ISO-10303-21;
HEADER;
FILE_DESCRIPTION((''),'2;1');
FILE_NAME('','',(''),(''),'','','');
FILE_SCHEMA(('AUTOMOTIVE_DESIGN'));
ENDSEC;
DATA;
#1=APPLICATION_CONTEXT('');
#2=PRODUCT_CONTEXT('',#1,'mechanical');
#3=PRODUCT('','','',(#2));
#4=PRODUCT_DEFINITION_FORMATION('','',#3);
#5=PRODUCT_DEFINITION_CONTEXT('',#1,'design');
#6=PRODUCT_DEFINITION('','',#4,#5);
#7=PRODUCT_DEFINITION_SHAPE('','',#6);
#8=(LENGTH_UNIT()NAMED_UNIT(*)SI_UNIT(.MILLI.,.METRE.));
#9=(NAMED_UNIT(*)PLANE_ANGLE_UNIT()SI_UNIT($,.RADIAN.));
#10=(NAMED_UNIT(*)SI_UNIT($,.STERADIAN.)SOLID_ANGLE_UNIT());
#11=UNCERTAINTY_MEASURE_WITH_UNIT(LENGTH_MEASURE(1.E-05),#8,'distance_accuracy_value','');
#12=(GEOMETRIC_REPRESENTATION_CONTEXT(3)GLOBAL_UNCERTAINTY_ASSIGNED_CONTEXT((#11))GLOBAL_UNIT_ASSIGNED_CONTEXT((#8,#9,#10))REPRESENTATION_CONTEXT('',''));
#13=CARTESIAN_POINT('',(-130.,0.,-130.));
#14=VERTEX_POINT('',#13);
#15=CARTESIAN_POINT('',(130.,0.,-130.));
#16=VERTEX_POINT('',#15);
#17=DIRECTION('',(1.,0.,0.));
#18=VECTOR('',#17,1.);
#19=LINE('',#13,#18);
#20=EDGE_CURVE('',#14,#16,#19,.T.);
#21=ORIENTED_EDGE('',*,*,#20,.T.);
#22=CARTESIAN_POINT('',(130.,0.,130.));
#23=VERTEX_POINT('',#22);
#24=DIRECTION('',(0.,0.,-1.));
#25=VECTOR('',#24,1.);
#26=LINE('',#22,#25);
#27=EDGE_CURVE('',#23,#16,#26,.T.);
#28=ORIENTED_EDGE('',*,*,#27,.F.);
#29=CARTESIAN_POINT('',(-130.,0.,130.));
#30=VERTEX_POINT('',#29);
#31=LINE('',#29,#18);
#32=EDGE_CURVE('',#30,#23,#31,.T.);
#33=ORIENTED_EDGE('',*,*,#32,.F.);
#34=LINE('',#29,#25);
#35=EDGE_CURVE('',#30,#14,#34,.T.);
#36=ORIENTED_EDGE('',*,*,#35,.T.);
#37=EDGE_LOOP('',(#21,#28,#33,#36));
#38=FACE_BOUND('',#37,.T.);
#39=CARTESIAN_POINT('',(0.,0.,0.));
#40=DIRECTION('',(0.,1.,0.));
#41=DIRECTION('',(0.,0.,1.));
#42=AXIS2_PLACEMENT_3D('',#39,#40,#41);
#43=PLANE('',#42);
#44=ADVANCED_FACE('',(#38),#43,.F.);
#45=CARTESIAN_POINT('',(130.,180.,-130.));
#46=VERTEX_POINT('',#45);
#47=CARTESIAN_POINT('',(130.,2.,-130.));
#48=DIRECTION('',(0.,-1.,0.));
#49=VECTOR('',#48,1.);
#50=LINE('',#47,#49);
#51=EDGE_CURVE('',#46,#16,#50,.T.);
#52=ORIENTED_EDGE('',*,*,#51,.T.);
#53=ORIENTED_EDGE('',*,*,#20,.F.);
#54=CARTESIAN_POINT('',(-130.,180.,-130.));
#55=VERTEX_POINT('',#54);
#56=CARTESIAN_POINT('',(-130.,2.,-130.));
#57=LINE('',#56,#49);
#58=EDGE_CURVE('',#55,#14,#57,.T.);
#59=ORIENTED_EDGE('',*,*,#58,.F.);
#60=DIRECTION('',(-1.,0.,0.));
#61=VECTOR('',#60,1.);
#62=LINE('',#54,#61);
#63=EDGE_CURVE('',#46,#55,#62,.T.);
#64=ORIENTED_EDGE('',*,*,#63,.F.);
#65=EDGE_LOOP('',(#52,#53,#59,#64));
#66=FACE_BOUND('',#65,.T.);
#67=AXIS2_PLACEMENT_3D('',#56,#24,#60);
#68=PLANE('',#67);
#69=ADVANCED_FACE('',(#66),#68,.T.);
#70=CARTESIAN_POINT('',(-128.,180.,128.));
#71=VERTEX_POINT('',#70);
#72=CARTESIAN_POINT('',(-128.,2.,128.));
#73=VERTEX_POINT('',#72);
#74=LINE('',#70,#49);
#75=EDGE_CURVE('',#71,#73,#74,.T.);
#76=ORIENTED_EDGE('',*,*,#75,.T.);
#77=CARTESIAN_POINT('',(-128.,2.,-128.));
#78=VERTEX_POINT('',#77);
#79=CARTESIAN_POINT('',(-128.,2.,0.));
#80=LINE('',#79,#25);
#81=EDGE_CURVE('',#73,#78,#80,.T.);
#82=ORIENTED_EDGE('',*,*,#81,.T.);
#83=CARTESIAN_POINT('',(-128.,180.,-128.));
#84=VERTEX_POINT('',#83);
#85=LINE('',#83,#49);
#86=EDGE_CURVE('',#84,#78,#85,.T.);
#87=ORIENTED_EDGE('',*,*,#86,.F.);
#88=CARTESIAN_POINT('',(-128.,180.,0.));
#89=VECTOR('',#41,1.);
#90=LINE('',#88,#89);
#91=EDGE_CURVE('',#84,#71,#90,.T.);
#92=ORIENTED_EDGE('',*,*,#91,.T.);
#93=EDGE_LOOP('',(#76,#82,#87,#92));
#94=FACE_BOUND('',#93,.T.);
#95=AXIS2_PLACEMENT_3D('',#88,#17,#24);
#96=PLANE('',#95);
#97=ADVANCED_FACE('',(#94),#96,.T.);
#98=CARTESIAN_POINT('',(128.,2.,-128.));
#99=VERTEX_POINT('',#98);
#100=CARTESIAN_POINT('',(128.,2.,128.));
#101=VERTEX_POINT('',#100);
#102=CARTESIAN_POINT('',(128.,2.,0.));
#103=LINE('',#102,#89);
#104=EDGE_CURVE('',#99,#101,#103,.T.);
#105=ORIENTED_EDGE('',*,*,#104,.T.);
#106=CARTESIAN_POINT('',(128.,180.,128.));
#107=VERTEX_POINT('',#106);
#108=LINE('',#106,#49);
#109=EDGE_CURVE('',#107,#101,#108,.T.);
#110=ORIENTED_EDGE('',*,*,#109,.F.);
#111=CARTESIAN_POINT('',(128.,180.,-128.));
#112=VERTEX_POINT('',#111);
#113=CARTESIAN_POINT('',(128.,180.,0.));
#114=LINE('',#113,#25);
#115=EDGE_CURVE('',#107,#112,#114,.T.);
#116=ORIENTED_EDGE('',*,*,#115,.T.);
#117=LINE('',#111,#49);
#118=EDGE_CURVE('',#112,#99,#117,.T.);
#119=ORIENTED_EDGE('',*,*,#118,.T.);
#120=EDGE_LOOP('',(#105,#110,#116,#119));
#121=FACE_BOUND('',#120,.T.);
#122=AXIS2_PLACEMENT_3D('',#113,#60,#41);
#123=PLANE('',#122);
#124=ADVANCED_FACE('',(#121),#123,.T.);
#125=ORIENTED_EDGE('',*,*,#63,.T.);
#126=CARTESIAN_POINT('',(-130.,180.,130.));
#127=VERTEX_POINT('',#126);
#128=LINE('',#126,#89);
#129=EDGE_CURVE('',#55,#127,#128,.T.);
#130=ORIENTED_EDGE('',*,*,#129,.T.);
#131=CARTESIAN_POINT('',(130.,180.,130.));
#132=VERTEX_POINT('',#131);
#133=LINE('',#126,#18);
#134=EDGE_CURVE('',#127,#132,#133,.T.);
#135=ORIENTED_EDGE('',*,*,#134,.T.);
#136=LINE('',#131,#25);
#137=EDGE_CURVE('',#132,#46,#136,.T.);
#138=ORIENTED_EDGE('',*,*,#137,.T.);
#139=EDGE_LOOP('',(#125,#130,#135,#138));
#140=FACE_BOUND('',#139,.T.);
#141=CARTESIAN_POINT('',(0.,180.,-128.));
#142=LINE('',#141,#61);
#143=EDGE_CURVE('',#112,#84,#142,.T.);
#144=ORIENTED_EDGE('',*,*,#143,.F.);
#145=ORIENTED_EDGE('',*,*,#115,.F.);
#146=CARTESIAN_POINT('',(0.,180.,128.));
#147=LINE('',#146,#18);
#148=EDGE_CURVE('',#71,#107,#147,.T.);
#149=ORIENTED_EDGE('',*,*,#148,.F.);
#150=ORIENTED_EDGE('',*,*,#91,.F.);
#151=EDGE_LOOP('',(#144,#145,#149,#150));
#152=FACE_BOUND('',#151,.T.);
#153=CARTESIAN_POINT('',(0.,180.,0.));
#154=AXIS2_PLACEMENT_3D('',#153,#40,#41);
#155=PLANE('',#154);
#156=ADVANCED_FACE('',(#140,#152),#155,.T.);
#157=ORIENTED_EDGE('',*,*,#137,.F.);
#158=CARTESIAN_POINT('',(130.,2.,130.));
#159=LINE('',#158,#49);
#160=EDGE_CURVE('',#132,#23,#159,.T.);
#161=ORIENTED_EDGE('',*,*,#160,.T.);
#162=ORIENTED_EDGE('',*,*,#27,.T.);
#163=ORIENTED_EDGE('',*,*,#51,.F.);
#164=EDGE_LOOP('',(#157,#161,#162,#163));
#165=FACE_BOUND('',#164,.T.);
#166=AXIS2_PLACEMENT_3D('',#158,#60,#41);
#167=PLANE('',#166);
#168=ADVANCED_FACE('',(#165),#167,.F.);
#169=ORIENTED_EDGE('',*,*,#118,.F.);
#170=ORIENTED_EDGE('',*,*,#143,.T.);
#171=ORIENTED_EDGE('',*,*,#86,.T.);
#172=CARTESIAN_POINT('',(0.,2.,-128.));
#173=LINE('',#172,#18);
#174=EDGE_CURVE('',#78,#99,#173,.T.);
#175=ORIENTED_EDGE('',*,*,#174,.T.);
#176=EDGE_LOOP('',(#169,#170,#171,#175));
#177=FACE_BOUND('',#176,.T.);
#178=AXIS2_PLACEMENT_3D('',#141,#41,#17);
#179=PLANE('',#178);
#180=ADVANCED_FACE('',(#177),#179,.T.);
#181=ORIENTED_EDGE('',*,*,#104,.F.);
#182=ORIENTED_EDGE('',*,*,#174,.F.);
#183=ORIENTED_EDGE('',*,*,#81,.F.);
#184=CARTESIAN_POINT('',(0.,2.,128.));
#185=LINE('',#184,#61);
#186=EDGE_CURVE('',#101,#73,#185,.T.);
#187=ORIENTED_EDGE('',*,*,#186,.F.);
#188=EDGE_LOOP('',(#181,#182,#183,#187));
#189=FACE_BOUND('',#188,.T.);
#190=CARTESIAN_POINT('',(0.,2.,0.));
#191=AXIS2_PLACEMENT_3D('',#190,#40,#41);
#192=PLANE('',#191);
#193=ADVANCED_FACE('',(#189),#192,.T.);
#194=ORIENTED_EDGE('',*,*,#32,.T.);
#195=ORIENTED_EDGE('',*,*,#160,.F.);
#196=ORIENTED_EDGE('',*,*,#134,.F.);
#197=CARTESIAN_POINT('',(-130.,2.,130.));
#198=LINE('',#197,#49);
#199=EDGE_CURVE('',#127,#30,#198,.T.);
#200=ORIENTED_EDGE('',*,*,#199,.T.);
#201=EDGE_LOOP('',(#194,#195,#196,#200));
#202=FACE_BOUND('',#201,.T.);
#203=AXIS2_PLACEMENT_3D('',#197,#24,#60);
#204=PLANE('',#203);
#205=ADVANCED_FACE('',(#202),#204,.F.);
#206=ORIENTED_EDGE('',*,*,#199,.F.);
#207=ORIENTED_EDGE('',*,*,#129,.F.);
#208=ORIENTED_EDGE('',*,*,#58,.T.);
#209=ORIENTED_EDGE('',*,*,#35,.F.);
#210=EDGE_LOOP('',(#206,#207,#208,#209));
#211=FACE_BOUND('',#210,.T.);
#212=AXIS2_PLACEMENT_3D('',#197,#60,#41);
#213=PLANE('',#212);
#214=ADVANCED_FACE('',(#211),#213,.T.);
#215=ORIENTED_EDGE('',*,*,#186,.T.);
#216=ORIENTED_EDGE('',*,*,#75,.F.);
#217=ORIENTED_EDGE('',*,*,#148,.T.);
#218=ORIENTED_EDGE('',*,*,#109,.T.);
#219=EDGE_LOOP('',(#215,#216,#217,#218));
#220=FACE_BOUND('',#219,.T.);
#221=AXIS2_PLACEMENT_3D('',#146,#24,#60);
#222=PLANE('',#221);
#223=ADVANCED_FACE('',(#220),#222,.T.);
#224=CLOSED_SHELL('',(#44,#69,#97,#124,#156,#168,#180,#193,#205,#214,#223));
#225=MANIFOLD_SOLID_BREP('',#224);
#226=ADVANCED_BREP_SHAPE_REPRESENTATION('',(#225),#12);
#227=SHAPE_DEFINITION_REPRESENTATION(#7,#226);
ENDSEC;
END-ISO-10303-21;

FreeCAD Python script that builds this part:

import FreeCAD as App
import Part
import Sketcher

V = App.Vector


def add_polygon(sketch, points):
    """Adds a closed chain of lines whose ends are joined by coincident constraints."""
    first, n = sketch.GeometryCount, len(points)
    for a, b in zip(points, points[1:] + points[:1]):
        sketch.addGeometry(Part.LineSegment(App.Vector(*a, 0), App.Vector(*b, 0)), False)
    for i in range(n):
        sketch.addConstraint(Sketcher.Constraint("Coincident", first + i, 2, first + (i + 1) % n, 1))

doc = App.newDocument("Part")
body = doc.addObject("PartDesign::Body", "Body")

# Sketch on XZ plane
sketch1 = body.newObject("Sketcher::SketchObject", "Sketch")
sketch1.AttachmentSupport = (doc.getObject("XZ_Plane"), [""])
sketch1.MapMode = "FlatFace"
add_polygon(sketch1, [(-130, -130), (-130, 130), (130, 130), (130, -130)])  # lines 0-3
sketch1.addConstraint([
    Sketcher.Constraint("Vertical", 0),
    Sketcher.Constraint("Horizontal", 1),
    Sketcher.Constraint("Vertical", 2),
    Sketcher.Constraint("Horizontal", 3),
    Sketcher.Constraint("Symmetric", 0, 2, 2, 2, -1, 1),
    Sketcher.Constraint("Equal", 3, 0),
    Sketcher.Constraint("DistanceX", 1, 1, 1, 2, 260.0),
])
pad1 = body.newObject("PartDesign::Pad", "Pad")
pad1.Profile = sketch1
pad1.Length = 2
pad1.Reversed = True

# Sketch on XZ plane
sketch2 = body.newObject("Sketcher::SketchObject", "Sketch001")
sketch2.AttachmentSupport = (doc.getObject("XZ_Plane"), [""])
sketch2.MapMode = "FlatFace"
add_polygon(sketch2, [(-130, -130), (-130, 130), (130, 130), (130, -130)])  # lines 0-3
add_polygon(sketch2, [(128, 128), (-128, 128), (-128, -128), (128, -128)])  # lines 4-7
sketch2.addConstraint([
    Sketcher.Constraint("Vertical", 0),
    Sketcher.Constraint("Horizontal", 1),
    Sketcher.Constraint("Vertical", 2),
    Sketcher.Constraint("Horizontal", 3),
    Sketcher.Constraint("Horizontal", 4),
    Sketcher.Constraint("Vertical", 5),
    Sketcher.Constraint("Horizontal", 6),
    Sketcher.Constraint("Vertical", 7),
    Sketcher.Constraint("Symmetric", 0, 2, 2, 2, -1, 1),
    Sketcher.Constraint("Symmetric", 4, 2, 6, 2, -1, 1),
    Sketcher.Constraint("Equal", 3, 0),
    Sketcher.Constraint("Equal", 6, 5),
    Sketcher.Constraint("DistanceX", 1, 1, 1, 2, 260.0),
    Sketcher.Constraint("DistanceX", 4, 2, 4, 1, 256.0),
])
pad2 = body.newObject("PartDesign::Pad", "Pad001")
pad2.Profile = sketch2
pad2.Length = 180
pad2.Reversed = True

doc.recompute()
